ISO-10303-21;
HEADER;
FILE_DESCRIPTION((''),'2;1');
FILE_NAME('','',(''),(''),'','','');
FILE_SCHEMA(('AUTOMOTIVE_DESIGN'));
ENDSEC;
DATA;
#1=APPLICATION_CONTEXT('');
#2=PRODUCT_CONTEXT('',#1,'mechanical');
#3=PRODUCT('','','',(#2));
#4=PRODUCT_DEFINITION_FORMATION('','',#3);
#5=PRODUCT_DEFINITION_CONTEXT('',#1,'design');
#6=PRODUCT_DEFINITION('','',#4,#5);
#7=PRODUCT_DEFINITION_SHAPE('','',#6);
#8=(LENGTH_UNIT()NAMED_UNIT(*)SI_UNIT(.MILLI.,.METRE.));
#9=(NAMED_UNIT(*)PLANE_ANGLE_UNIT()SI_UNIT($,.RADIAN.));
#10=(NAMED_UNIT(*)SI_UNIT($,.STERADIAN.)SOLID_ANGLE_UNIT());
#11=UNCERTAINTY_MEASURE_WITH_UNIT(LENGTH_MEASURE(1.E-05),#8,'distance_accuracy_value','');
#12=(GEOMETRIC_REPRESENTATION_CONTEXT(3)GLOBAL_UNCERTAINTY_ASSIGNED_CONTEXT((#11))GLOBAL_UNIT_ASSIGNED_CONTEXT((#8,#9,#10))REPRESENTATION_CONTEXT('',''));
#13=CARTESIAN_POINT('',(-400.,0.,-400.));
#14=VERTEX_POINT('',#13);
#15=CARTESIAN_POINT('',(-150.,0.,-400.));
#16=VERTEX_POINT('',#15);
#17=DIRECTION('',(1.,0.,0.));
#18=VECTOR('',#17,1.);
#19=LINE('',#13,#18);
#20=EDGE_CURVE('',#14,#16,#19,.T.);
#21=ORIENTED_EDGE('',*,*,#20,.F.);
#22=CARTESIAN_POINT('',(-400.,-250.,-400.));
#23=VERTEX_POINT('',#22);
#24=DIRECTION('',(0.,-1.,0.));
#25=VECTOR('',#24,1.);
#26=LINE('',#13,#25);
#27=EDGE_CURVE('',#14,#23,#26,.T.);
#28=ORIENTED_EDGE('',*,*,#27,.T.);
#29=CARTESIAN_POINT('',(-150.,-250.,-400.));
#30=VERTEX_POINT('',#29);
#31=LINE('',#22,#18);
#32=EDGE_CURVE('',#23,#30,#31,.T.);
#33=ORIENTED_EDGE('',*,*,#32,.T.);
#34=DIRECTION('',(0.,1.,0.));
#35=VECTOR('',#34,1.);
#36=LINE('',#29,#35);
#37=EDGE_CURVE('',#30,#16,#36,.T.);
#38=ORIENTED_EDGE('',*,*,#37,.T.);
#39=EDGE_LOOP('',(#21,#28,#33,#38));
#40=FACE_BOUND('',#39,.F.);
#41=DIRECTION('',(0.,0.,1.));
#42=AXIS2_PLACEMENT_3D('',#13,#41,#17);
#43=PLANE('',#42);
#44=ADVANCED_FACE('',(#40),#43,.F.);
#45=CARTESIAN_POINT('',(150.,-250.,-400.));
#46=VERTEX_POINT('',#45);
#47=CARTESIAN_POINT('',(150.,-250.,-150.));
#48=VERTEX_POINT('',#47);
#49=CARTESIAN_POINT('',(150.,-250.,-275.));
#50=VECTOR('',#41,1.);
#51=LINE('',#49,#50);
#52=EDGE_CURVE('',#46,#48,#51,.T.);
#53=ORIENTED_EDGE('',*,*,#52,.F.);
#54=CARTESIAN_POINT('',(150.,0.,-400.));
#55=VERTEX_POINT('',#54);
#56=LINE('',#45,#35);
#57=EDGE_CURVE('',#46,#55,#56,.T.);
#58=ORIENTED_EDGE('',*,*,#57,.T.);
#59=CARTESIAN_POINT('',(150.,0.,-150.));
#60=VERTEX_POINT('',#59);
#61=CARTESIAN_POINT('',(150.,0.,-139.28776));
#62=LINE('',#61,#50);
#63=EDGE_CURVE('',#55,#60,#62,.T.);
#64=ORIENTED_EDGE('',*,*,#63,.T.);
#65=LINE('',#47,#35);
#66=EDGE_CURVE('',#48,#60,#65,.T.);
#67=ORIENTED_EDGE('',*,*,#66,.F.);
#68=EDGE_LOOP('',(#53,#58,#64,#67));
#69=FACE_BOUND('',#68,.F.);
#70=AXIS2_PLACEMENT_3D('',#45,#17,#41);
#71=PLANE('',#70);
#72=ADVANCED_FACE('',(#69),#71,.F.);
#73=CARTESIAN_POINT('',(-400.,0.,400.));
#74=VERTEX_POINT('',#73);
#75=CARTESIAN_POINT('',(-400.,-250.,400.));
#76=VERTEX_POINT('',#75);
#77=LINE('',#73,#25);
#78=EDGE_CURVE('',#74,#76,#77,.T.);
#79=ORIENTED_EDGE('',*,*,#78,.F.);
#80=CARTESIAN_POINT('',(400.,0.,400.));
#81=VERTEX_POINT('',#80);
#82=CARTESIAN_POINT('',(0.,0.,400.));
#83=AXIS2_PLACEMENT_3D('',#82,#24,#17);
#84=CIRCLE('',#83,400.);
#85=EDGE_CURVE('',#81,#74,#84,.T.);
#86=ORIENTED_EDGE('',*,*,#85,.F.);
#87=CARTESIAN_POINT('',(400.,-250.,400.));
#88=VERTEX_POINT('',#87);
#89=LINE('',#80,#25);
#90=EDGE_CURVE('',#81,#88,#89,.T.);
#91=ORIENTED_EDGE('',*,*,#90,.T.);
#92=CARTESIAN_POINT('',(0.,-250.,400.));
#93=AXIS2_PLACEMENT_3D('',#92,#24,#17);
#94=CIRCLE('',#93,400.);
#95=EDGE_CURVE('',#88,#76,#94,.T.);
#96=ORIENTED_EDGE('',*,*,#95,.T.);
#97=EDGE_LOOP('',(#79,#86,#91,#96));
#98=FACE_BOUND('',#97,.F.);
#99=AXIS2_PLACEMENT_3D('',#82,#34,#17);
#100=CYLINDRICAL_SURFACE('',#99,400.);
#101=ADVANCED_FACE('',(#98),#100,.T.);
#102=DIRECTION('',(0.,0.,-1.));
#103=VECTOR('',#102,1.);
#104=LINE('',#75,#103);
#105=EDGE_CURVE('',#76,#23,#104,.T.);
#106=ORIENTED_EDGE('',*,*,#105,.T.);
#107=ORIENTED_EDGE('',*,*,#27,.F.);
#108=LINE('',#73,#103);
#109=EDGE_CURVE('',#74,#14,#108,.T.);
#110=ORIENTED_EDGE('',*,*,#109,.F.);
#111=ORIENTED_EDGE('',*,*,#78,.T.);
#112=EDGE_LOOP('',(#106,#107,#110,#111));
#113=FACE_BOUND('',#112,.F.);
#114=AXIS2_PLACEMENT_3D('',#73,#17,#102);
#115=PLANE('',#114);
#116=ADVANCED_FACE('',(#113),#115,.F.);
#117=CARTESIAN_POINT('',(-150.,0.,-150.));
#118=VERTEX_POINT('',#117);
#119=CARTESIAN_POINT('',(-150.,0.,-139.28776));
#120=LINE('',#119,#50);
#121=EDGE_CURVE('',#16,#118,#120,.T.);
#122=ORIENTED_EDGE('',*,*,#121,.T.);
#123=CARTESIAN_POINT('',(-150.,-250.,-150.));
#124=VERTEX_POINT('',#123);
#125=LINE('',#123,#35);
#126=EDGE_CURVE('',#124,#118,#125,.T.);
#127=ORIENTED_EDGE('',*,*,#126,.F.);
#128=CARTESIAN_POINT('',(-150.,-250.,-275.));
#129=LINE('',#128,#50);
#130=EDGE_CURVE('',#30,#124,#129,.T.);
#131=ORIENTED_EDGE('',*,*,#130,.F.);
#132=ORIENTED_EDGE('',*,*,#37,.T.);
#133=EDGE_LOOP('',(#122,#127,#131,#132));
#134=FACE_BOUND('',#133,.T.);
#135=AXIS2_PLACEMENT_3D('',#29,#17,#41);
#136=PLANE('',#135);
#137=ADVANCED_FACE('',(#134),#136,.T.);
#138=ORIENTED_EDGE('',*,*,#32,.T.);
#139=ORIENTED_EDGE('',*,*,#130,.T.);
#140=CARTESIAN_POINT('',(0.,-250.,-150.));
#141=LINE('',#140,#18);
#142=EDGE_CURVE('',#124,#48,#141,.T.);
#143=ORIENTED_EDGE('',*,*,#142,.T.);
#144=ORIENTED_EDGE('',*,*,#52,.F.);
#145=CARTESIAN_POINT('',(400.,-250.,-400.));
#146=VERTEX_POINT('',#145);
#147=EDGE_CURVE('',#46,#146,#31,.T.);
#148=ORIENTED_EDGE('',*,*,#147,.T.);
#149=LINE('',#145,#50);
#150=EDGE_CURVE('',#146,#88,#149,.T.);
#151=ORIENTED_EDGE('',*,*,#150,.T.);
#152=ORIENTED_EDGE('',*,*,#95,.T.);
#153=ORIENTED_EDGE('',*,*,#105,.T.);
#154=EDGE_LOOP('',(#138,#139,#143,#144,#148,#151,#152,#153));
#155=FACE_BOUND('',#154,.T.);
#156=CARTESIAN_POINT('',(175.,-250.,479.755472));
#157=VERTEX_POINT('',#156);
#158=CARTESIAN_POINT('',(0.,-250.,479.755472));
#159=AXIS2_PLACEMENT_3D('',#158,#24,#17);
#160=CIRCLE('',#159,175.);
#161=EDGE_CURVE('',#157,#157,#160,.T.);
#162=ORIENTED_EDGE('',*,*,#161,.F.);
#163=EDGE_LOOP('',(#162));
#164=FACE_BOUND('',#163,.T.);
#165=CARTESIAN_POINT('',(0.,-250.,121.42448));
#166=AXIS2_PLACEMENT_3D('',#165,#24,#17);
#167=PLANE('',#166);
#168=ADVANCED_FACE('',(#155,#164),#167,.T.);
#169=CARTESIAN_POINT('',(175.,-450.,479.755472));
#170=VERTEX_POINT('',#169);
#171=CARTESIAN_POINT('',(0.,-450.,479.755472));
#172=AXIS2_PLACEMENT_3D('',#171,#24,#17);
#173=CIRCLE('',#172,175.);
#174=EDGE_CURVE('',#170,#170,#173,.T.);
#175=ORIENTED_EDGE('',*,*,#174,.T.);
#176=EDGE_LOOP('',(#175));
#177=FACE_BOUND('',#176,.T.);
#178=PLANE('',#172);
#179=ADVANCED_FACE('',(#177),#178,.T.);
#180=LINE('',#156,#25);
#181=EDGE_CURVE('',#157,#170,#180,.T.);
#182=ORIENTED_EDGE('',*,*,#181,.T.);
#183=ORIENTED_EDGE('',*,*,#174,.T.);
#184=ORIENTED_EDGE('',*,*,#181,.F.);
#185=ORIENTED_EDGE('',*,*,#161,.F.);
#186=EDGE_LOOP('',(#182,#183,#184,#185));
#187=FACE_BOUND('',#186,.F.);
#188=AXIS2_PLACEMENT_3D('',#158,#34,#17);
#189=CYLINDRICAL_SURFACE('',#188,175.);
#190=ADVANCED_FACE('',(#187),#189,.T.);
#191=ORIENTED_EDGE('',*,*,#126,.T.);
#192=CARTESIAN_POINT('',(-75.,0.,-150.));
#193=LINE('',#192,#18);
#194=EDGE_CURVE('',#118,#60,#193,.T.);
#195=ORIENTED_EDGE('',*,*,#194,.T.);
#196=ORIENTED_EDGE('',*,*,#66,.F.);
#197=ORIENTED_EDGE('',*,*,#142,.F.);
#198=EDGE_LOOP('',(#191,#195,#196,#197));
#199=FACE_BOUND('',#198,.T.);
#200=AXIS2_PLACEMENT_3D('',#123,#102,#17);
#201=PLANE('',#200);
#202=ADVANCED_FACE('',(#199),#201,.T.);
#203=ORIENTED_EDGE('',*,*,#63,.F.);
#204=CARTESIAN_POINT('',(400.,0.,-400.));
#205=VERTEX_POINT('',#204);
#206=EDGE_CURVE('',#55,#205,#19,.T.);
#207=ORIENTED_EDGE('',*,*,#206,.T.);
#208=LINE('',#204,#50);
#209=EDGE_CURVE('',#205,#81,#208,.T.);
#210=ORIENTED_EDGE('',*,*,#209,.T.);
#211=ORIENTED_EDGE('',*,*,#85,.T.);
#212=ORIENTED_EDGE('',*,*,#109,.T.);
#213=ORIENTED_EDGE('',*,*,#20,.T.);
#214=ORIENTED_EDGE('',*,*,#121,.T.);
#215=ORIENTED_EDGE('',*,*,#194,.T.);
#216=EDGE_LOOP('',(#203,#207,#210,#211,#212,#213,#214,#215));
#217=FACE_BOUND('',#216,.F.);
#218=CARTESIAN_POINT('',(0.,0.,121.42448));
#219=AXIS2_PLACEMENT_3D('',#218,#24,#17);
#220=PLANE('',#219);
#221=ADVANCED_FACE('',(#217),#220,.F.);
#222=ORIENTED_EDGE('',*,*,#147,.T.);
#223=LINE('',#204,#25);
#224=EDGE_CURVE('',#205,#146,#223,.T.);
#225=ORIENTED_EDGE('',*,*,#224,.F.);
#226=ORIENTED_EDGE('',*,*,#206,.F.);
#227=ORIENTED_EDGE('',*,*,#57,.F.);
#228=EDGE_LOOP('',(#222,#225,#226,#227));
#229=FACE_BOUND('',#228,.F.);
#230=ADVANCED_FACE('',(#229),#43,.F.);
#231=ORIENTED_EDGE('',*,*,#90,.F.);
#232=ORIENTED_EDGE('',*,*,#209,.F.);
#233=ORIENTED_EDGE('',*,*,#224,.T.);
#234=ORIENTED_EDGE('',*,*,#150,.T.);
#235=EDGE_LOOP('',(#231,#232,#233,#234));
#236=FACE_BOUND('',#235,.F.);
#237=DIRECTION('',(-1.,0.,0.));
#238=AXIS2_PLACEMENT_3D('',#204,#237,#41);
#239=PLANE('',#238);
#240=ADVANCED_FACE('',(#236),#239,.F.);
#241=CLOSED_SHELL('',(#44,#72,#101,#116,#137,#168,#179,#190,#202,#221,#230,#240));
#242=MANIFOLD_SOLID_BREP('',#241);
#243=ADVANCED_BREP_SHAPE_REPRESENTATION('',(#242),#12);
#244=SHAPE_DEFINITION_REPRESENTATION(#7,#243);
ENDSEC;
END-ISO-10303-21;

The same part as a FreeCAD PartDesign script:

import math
import FreeCAD as App
import Part
import Sketcher
from FreeCAD import Vector
Q = App.Units.Quantity


def add_polygon(sketch, points):
    """Adds a closed chain of lines whose ends are joined by coincident constraints."""
    first, n = sketch.GeometryCount, len(points)
    for a, b in zip(points, points[1:] + points[:1]):
        sketch.addGeometry(Part.LineSegment(App.Vector(*a, 0), App.Vector(*b, 0)), False)
    for i in range(n):
        sketch.addConstraint(Sketcher.Constraint("Coincident", first + i, 2, first + (i + 1) % n, 1))

doc = App.newDocument("Part")
params = doc.addObject("Spreadsheet::Sheet", "Params")
for row, (alias, value) in enumerate([
    ("sketch1_radius", "400 mm"),
    ("pad1_length", "250 mm"),
    ("sketch2_width", "300 mm"),
    ("sketch2_height", "250 mm"),
    ("sketch3_diameter", "350 mm"),
    ("pad2_length", "200 mm"),
], start=1):
    params.set(f"A{row}", alias)
    params.set(f"B{row}", "=" + value)
    params.setAlias(f"B{row}", alias)

body = doc.addObject("PartDesign::Body", "Body")

# Sketch on XZ plane
sketch1 = doc.addObject("Sketcher::SketchObject", "Sketch")
body.addObject(sketch1)
sketch1.AttachmentSupport = (doc.XZ_Plane, [""])
sketch1.MapMode = "FlatFace"
sketch1.addGeometry([
    Part.LineSegment(Vector(-400, 400, 0), Vector(-400, -400, 0)),
    Part.LineSegment(Vector(-400, -400, 0), Vector(400, -400, 0)),
    Part.LineSegment(Vector(400, -400, 0), Vector(400, 400, 0)),
    Part.ArcOfCircle(Part.Circle(Vector(0, 400, 0), Vector(0, 0, 1), 400), math.radians(0), math.radians(180)),
], False)
sketch1.addConstraint([
    Sketcher.Constraint("Coincident", 0, 2, 1, 1),
    Sketcher.Constraint("Coincident", 1, 2, 2, 1),
    Sketcher.Constraint("Tangent", 2, 2, 3, 1),
    Sketcher.Constraint("Tangent", 3, 2, 0, 1),
    Sketcher.Constraint("Vertical", 0),
    Sketcher.Constraint("Horizontal", 1),
    Sketcher.Constraint("Vertical", 2),
    Sketcher.Constraint("Symmetric", 0, 2, 2, 2, -1, 1),
    Sketcher.Constraint("Equal", 1, 0),
    Sketcher.Constraint("Radius", 3, Q("400 mm")),
])
sketch1.setExpression("Constraints[9]", "Params.sketch1_radius")
pad1 = doc.addObject("PartDesign::Pad", "Pad")
body.addObject(pad1)
pad1.Profile = sketch1
pad1.setExpression("Length", "Params.pad1_length")

# Sketch on XZ plane
sketch2 = doc.addObject("Sketcher::SketchObject", "Sketch001")
body.addObject(sketch2)
sketch2.AttachmentSupport = (doc.XZ_Plane, [""])
sketch2.MapMode = "FlatFace"
sketch2.AttachmentOffset = App.Placement(Vector(0, 0, 250), App.Rotation())
add_polygon(sketch2, [(-150, -150), (-150, -400), (150, -400), (150, -150)])  # lines 0-3
sketch2.addConstraint([
    Sketcher.Constraint("Vertical", 0),
    Sketcher.Constraint("Horizontal", 1),
    Sketcher.Constraint("Vertical", 2),
    Sketcher.Constraint("Horizontal", 3),
    Sketcher.Constraint("DistanceX", 1, 1, 1, 2, Q("300 mm")),
    Sketcher.Constraint("DistanceY", 0, 2, 0, 1, Q("250 mm")),
    Sketcher.Constraint("DistanceX", 0, 2, -1, 1, Q("150 mm")),
    Sketcher.Constraint("DistanceY", 0, 2, -1, 1, Q("400 mm")),
])
sketch2.setExpression("Constraints[8]", "Params.sketch2_width")
sketch2.setExpression("Constraints[9]", "Params.sketch2_height")
pocket1 = doc.addObject("PartDesign::Pocket", "Pocket")
body.addObject(pocket1)
pocket1.Profile = sketch2
pocket1.Type = "ThroughAll"

# Sketch on XZ plane
sketch3 = doc.addObject("Sketcher::SketchObject", "Sketch002")
body.addObject(sketch3)
sketch3.AttachmentSupport = (doc.XZ_Plane, [""])
sketch3.MapMode = "FlatFace"
sketch3.AttachmentOffset = App.Placement(Vector(0, 0, 250), App.Rotation())
sketch3.addGeometry(Part.Circle(Vector(0, 479.755472, 0), Vector(0, 0, 1), 175), False)
sketch3.addConstraint([
    Sketcher.Constraint("PointOnObject", 0, 3, -2),
    Sketcher.Constraint("Diameter", 0, Q("350 mm")),
    Sketcher.Constraint("DistanceY", -1, 1, 0, 3, Q("479.755472 mm")),
])
sketch3.setExpression("Constraints[1]", "Params.sketch3_diameter")
pad2 = doc.addObject("PartDesign::Pad", "Pad001")
body.addObject(pad2)
pad2.Profile = sketch3
pad2.setExpression("Length", "Params.pad2_length")

doc.recompute()
